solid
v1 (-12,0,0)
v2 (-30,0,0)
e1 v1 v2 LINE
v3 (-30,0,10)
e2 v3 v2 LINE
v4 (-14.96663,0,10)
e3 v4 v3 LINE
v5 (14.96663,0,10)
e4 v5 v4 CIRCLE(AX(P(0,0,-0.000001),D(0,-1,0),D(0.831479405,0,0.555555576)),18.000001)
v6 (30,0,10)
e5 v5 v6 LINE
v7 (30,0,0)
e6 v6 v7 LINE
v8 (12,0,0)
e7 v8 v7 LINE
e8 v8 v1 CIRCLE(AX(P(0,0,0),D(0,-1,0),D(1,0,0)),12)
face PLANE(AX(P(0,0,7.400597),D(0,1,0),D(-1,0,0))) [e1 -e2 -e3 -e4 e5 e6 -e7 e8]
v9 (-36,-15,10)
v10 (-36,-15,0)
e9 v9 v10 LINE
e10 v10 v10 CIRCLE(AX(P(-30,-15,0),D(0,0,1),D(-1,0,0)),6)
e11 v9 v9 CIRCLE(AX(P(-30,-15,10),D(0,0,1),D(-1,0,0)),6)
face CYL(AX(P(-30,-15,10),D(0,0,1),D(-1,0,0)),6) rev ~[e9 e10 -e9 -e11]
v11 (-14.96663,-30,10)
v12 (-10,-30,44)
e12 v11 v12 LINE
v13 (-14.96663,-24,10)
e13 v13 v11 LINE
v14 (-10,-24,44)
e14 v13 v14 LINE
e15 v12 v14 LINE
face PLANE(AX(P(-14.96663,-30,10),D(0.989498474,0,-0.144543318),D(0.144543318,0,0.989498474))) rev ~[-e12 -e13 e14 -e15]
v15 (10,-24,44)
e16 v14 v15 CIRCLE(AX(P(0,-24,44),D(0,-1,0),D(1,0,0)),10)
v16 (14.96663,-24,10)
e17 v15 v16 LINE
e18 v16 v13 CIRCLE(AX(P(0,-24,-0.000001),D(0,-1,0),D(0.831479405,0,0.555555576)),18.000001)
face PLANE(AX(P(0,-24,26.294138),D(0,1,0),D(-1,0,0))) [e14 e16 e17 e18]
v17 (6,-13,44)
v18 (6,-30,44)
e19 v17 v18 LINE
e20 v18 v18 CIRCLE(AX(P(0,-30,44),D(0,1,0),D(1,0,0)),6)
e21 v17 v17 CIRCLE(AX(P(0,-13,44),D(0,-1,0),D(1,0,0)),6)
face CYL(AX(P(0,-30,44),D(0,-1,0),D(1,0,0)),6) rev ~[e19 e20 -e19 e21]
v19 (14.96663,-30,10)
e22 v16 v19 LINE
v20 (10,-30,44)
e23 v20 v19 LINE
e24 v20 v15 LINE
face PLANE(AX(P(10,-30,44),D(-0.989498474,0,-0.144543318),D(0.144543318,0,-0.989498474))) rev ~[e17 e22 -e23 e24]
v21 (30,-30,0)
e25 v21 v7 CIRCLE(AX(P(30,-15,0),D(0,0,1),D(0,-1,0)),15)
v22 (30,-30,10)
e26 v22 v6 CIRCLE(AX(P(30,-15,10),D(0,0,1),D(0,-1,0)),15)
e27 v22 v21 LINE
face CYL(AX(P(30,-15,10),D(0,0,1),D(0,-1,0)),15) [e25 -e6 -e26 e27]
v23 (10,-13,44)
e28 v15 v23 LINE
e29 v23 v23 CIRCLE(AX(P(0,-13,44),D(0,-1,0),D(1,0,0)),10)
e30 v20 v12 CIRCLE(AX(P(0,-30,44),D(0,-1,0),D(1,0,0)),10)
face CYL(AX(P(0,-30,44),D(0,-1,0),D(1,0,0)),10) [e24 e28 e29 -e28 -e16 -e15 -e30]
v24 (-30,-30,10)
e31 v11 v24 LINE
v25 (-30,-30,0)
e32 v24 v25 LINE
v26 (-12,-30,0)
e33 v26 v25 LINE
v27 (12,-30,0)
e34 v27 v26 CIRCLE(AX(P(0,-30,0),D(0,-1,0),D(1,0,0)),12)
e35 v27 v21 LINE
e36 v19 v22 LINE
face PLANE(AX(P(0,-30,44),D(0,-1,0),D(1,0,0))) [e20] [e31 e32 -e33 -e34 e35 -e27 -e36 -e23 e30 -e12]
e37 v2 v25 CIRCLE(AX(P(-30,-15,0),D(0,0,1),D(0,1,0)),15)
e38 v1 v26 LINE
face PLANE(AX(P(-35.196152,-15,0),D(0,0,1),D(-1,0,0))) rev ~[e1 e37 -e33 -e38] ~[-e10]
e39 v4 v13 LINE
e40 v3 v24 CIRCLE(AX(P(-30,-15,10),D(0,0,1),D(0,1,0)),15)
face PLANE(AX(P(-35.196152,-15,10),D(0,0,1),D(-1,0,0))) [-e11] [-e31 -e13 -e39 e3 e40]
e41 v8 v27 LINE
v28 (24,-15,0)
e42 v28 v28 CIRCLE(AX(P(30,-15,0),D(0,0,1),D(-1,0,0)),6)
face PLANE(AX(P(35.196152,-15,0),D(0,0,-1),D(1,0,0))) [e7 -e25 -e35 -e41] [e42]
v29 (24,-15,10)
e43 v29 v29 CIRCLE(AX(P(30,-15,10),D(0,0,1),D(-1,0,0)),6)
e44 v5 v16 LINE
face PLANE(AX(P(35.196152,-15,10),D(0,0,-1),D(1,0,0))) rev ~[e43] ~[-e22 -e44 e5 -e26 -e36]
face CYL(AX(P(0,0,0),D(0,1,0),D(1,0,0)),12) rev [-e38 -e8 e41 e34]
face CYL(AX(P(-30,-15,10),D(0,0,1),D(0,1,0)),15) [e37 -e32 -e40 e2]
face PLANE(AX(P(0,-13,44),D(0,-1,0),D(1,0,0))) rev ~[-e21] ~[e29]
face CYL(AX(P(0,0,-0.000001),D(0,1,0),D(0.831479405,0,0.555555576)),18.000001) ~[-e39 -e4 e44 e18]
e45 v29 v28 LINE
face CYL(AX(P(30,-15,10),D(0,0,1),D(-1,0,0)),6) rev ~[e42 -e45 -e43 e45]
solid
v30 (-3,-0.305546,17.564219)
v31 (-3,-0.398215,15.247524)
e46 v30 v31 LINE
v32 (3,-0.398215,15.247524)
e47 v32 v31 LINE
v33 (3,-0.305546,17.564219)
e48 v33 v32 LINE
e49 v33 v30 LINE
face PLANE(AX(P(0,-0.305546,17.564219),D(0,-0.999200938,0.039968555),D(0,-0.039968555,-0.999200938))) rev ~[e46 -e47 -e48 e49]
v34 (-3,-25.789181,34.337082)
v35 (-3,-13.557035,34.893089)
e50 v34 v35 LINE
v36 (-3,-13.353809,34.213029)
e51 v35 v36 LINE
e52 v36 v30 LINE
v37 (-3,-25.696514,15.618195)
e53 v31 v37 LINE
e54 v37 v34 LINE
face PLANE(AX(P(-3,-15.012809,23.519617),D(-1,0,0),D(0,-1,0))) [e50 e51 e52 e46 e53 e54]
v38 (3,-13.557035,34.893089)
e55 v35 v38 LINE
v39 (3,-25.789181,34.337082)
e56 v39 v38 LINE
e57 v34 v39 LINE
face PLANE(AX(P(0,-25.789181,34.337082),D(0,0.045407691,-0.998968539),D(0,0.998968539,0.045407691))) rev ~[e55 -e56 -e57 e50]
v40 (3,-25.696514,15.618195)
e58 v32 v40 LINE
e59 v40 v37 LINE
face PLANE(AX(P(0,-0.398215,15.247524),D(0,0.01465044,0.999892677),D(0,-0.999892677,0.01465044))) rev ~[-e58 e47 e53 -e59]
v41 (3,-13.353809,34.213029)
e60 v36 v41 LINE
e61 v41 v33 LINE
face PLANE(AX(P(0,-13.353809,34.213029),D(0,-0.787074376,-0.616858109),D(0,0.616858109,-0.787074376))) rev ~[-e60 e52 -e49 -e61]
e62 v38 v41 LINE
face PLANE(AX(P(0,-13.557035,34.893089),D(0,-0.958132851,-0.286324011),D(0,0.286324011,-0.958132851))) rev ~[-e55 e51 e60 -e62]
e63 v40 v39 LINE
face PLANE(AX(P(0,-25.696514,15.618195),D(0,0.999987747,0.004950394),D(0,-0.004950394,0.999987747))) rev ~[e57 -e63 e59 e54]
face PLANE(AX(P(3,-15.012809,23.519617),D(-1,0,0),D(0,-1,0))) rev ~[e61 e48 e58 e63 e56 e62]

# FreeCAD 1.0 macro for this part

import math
import FreeCAD as App
import Part
import Sketcher
from FreeCAD import Vector


def add_polygon(sketch, points):
    """Adds a closed chain of lines whose ends are joined by coincident constraints."""
    first, n = sketch.GeometryCount, len(points)
    for a, b in zip(points, points[1:] + points[:1]):
        sketch.addGeometry(Part.LineSegment(App.Vector(*a, 0), App.Vector(*b, 0)), False)
    for i in range(n):
        sketch.addConstraint(Sketcher.Constraint("Coincident", first + i, 2, first + (i + 1) % n, 1))

doc = App.newDocument("Part")
params = doc.addObject("Spreadsheet::Sheet", "Params")
for row, (alias, value) in enumerate([
    ("sketch1_radius", "12 mm"),
    ("sketch1_radius2", "18.000001 mm"),
    ("sketch1_width", "18 mm"),
    ("sketch1_height", "10 mm"),
    ("pad1_length", "30 mm"),
    ("sketch2_radius", "15 mm"),
    ("pad2_length", "10 mm"),
    ("sketch3_radius", "15 mm"),
    ("pad3_length", "10 mm"),
    ("sketch4_diameter", "12 mm"),
    ("sketch5_diameter", "12 mm"),
    ("sketch6_radius", "18.000001 mm"),
    ("sketch6_width", "20 mm"),
    ("pad4_length", "6 mm"),
    ("sketch7_diameter", "20 mm"),
    ("sketch7_diameter2", "12 mm"),
    ("pad5_length", "17 mm"),
    ("sketch8_diameter", "12 mm"),
    ("pad6_length", "6 mm"),
], start=1):
    params.set(f"A{row}", alias)
    params.set(f"B{row}", "=" + value)
    params.setAlias(f"B{row}", alias)

body = doc.addObject("PartDesign::Body", "Body")

# Sketch on XZ plane
sketch1 = body.newObject("Sketcher::SketchObject", "Sketch")
sketch1.AttachmentSupport = (doc.getObject("XZ_Plane"), [""])
sketch1.MapMode = "FlatFace"
sketch1.addGeometry(Part.ArcOfCircle(Part.Circle(Vector(0, 0, 0), Vector(0, 0, 1), 12), math.radians(0), math.radians(180)), False)
sketch1.addGeometry(Part.LineSegment(Vector(12, 0, 0), Vector(30, 0, 0)), False)
sketch1.addGeometry(Part.LineSegment(Vector(30, 0, 0), Vector(30, 10, 0)), False)
sketch1.addGeometry(Part.LineSegment(Vector(30, 10, 0), Vector(14.96663, 10, 0)), False)
sketch1.addGeometry(Part.ArcOfCircle(Part.Circle(Vector(0, -0.000001, 0), Vector(0, 0, 1), 18.000001), math.radians(33.74899), math.radians(146.25101)), False)
sketch1.addGeometry(Part.LineSegment(Vector(-14.96663, 10, 0), Vector(-30, 10, 0)), False)
sketch1.addGeometry(Part.LineSegment(Vector(-30, 10, 0), Vector(-30, 0, 0)), False)
sketch1.addGeometry(Part.LineSegment(Vector(-30, 0, 0), Vector(-12, 0, 0)), False)
sketch1.addConstraint(Sketcher.Constraint("Coincident", 0, 1, 1, 1))
sketch1.addConstraint(Sketcher.Constraint("Coincident", 1, 2, 2, 1))
sketch1.addConstraint(Sketcher.Constraint("Coincident", 2, 2, 3, 1))
sketch1.addConstraint(Sketcher.Constraint("Coincident", 3, 2, 4, 1))
sketch1.addConstraint(Sketcher.Constraint("Coincident", 4, 2, 5, 1))
sketch1.addConstraint(Sketcher.Constraint("Coincident", 5, 2, 6, 1))
sketch1.addConstraint(Sketcher.Constraint("Coincident", 6, 2, 7, 1))
sketch1.addConstraint(Sketcher.Constraint("Coincident", 7, 2, 0, 2))
sketch1.addConstraint(Sketcher.Constraint("Horizontal", 1))
sketch1.addConstraint(Sketcher.Constraint("Vertical", 2))
sketch1.addConstraint(Sketcher.Constraint("Horizontal", 3))
sketch1.addConstraint(Sketcher.Constraint("Horizontal", 5))
sketch1.addConstraint(Sketcher.Constraint("Vertical", 6))
sketch1.addConstraint(Sketcher.Constraint("Horizontal", 7))
sketch1.addConstraint(Sketcher.Constraint("Coincident", 0, 3, -1, 1))
sketch1.addConstraint(Sketcher.Constraint("Coincident", 4, 3, -1, 1))
sketch1.addConstraint(Sketcher.Constraint("Symmetric", 1, 2, 6, 2, -1, 1))
sketch1.addConstraint(Sketcher.Constraint("PointOnObject", 0, 1, -1))
sketch1.addConstraint(Sketcher.Constraint("Horizontal", 3, 2, 4, 2))
sketch1.addConstraint(Sketcher.Constraint("Radius", 0, 12.0))
sketch1.addConstraint(Sketcher.Constraint("Radius", 4, 18.000001))
sketch1.addConstraint(Sketcher.Constraint("DistanceX", 1, 1, 1, 2, 18.0))
sketch1.addConstraint(Sketcher.Constraint("DistanceY", 2, 1, 2, 2, 10.0))
sketch1.setExpression("Constraints[19]", "Params.sketch1_radius")
sketch1.setExpression("Constraints[20]", "Params.sketch1_radius2")
sketch1.setExpression("Constraints[21]", "Params.sketch1_width")
sketch1.setExpression("Constraints[22]", "Params.sketch1_height")
pad1 = body.newObject("PartDesign::Pad", "Pad")
pad1.Profile = sketch1
pad1.setExpression("Length", "Params.pad1_length")

# Sketch on XY plane
sketch2 = body.newObject("Sketcher::SketchObject", "Sketch001")
sketch2.AttachmentSupport = (doc.getObject("XY_Plane"), [""])
sketch2.MapMode = "FlatFace"
sketch2.AttachmentOffset = App.Placement(Vector(0, 0, 10), App.Rotation())
sketch2.addGeometry(Part.LineSegment(Vector(30, 0, 0), Vector(30, -30, 0)), False)
sketch2.addGeometry(Part.ArcOfCircle(Part.Circle(Vector(30, -15, 0), Vector(0, 0, 1), 15), math.radians(-90), math.radians(90)), False)
sketch2.addConstraint(Sketcher.Constraint("Coincident", 0, 1, 1, 2))
sketch2.addConstraint(Sketcher.Constraint("Coincident", 1, 1, 0, 2))
sketch2.addConstraint(Sketcher.Constraint("Vertical", 0))
sketch2.addConstraint(Sketcher.Constraint("PointOnObject", 0, 1, -1))
sketch2.addConstraint(Sketcher.Constraint("Vertical", 1, 3, 0, 1))
sketch2.addConstraint(Sketcher.Constraint("Radius", 1, 15.0))
sketch2.addConstraint(Sketcher.Constraint("DistanceX", -1, 1, 1, 3, 30.0))
sketch2.setExpression("Constraints[5]", "Params.sketch2_radius")
pad2 = body.newObject("PartDesign::Pad", "Pad001")
pad2.Profile = sketch2
pad2.setExpression("Length", "Params.pad2_length")
pad2.Reversed = True

# Sketch on XY plane
sketch3 = body.newObject("Sketcher::SketchObject", "Sketch002")
sketch3.AttachmentSupport = (doc.getObject("XY_Plane"), [""])
sketch3.MapMode = "FlatFace"
sketch3.AttachmentOffset = App.Placement(Vector(0, 0, 10), App.Rotation())
sketch3.addGeometry(Part.LineSegment(Vector(-30, -30, 0), Vector(-30, 0, 0)), False)
sketch3.addGeometry(Part.ArcOfCircle(Part.Circle(Vector(-30, -15, 0), Vector(0, 0, 1), 15), math.radians(90), math.radians(270)), False)
sketch3.addConstraint(Sketcher.Constraint("Coincident", 0, 1, 1, 2))
sketch3.addConstraint(Sketcher.Constraint("Coincident", 1, 1, 0, 2))
sketch3.addConstraint(Sketcher.Constraint("Vertical", 0))
sketch3.addConstraint(Sketcher.Constraint("PointOnObject", 1, 1, -1))
sketch3.addConstraint(Sketcher.Constraint("Vertical", 1, 3, 0, 1))
sketch3.addConstraint(Sketcher.Constraint("Radius", 1, 15.0))
sketch3.addConstraint(Sketcher.Constraint("DistanceX", 1, 3, -1, 1, 30.0))
sketch3.setExpression("Constraints[5]", "Params.sketch3_radius")
pad3 = body.newObject("PartDesign::Pad", "Pad002")
pad3.Profile = sketch3
pad3.setExpression("Length", "Params.pad3_length")
pad3.Reversed = True

# Sketch on XY plane
sketch4 = body.newObject("Sketcher::SketchObject", "Sketch003")
sketch4.AttachmentSupport = (doc.getObject("XY_Plane"), [""])
sketch4.MapMode = "FlatFace"
sketch4.AttachmentOffset = App.Placement(Vector(0, 0, 10), App.Rotation())
sketch4.addGeometry(Part.Circle(Vector(30, -15, 0), Vector(0, 0, 1), 6), False)
sketch4.addConstraint(Sketcher.Constraint("Diameter", 0, 12.0))
sketch4.addConstraint(Sketcher.Constraint("DistanceX", -1, 1, 0, 3, 30.0))
sketch4.addConstraint(Sketcher.Constraint("DistanceY", 0, 3, -1, 1, 15.0))
sketch4.setExpression("Constraints[0]", "Params.sketch4_diameter")
pocket1 = body.newObject("PartDesign::Pocket", "Pocket")
pocket1.Profile = sketch4
pocket1.Type = "ThroughAll"

# Sketch on XY plane
sketch5 = body.newObject("Sketcher::SketchObject", "Sketch004")
sketch5.AttachmentSupport = (doc.getObject("XY_Plane"), [""])
sketch5.MapMode = "FlatFace"
sketch5.AttachmentOffset = App.Placement(Vector(0, 0, 10), App.Rotation())
sketch5.addGeometry(Part.Circle(Vector(-30, -15, 0), Vector(0, 0, 1), 6), False)
sketch5.addConstraint(Sketcher.Constraint("Diameter", 0, 12.0))
sketch5.addConstraint(Sketcher.Constraint("DistanceX", 0, 3, -1, 1, 30.0))
sketch5.addConstraint(Sketcher.Constraint("DistanceY", 0, 3, -1, 1, 15.0))
sketch5.setExpression("Constraints[0]", "Params.sketch5_diameter")
pocket2 = body.newObject("PartDesign::Pocket", "Pocket001")
pocket2.Profile = sketch5
pocket2.Type = "ThroughAll"

# Sketch on XZ plane
sketch6 = body.newObject("Sketcher::SketchObject", "Sketch005")
sketch6.AttachmentSupport = (doc.getObject("XZ_Plane"), [""])
sketch6.MapMode = "FlatFace"
sketch6.AttachmentOffset = App.Placement(Vector(0, 0, 30), App.Rotation())
sketch6.addGeometry(Part.LineSegment(Vector(-10, 44, 0), Vector(-14.96663, 10, 0)), False)
sketch6.addGeometry(Part.ArcOfCircle(Part.Circle(Vector(0, -0.000001, 0), Vector(0, 0, 1), 18.000001), math.radians(33.74899), math.radians(146.25101)), False)
sketch6.addGeometry(Part.LineSegment(Vector(14.96663, 10, 0), Vector(10, 44, 0)), False)
sketch6.addGeometry(Part.LineSegment(Vector(10, 44, 0), Vector(-10, 44, 0)), False)
sketch6.addConstraint(Sketcher.Constraint("Coincident", 0, 2, 1, 2))
sketch6.addConstraint(Sketcher.Constraint("Coincident", 1, 1, 2, 1))
sketch6.addConstraint(Sketcher.Constraint("Coincident", 2, 2, 3, 1))
sketch6.addConstraint(Sketcher.Constraint("Coincident", 3, 2, 0, 1))
sketch6.addConstraint(Sketcher.Constraint("Horizontal", 3))
sketch6.addConstraint(Sketcher.Constraint("Coincident", 1, 3, -1, 1))
sketch6.addConstraint(Sketcher.Constraint("Horizontal", 0, 2, 1, 1))
sketch6.addConstraint(Sketcher.Constraint("Equal", 0, 2))
sketch6.addConstraint(Sketcher.Constraint("Radius", 1, 18.000001))
sketch6.addConstraint(Sketcher.Constraint("DistanceX", 3, 2, 3, 1, 20.0))
sketch6.addConstraint(Sketcher.Constraint("DistanceY", -1, 1, 0, 2, 10.0))
sketch6.addConstraint(Sketcher.Constraint("DistanceY", -1, 1, 2, 2, 44.0))
sketch6.setExpression("Constraints[8]", "Params.sketch6_radius")
sketch6.setExpression("Constraints[9]", "Params.sketch6_width")
pad4 = body.newObject("PartDesign::Pad", "Pad003")
pad4.Profile = sketch6
pad4.setExpression("Length", "Params.pad4_length")
pad4.Reversed = True

# Sketch on XZ plane
sketch7 = body.newObject("Sketcher::SketchObject", "Sketch006")
sketch7.AttachmentSupport = (doc.getObject("XZ_Plane"), [""])
sketch7.MapMode = "FlatFace"
sketch7.AttachmentOffset = App.Placement(Vector(0, 0, 30), App.Rotation())
sketch7.addGeometry(Part.Circle(Vector(0, 44, 0), Vector(0, 0, 1), 10), False)
sketch7.addGeometry(Part.Circle(Vector(0, 44, 0), Vector(0, 0, 1), 6), False)
sketch7.addConstraint(Sketcher.Constraint("Coincident", 1, 3, 0, 3))
sketch7.addConstraint(Sketcher.Constraint("PointOnObject", 0, 3, -2))
sketch7.addConstraint(Sketcher.Constraint("Diameter", 0, 20.0))
sketch7.addConstraint(Sketcher.Constraint("Diameter", 1, 12.0))
sketch7.addConstraint(Sketcher.Constraint("DistanceY", -1, 1, 0, 3, 44.0))
sketch7.setExpression("Constraints[2]", "Params.sketch7_diameter")
sketch7.setExpression("Constraints[3]", "Params.sketch7_diameter2")
pad5 = body.newObject("PartDesign::Pad", "Pad004")
pad5.Profile = sketch7
pad5.setExpression("Length", "Params.pad5_length")
pad5.Reversed = True

# Sketch on XZ plane
sketch8 = body.newObject("Sketcher::SketchObject", "Sketch007")
sketch8.AttachmentSupport = (doc.getObject("XZ_Plane"), [""])
sketch8.MapMode = "FlatFace"
sketch8.AttachmentOffset = App.Placement(Vector(0, 0, 30), App.Rotation())
sketch8.addGeometry(Part.Circle(Vector(0, 44, 0), Vector(0, 0, 1), 6), False)
sketch8.addConstraint(Sketcher.Constraint("PointOnObject", 0, 3, -2))
sketch8.addConstraint(Sketcher.Constraint("Diameter", 0, 12.0))
sketch8.addConstraint(Sketcher.Constraint("DistanceY", -1, 1, 0, 3, 44.0))
sketch8.setExpression("Constraints[1]", "Params.sketch8_diameter")
pocket3 = body.newObject("PartDesign::Pocket", "Pocket002")
pocket3.Profile = sketch8
pocket3.Type = "ThroughAll"
body2 = doc.addObject("PartDesign::Body", "Body001")

# Sketch on YZ plane
sketch9 = body2.newObject("Sketcher::SketchObject", "Sketch008")
sketch9.AttachmentSupport = (doc.getObject("YZ_Plane001"), [""])
sketch9.MapMode = "FlatFace"
add_polygon(sketch9, [(-0.305546, 17.564219), (-13.353809, 34.213029), (-13.557035, 34.893089), (-25.789181, 34.337082), (-25.696514, 15.618195), (-0.398215, 15.247524)])  # lines 0-5
sketch9.addConstraint(Sketcher.Constraint("DistanceX", 3, 2, 4, 2, 25.298299))
sketch9.addConstraint(Sketcher.Constraint("Distance", 0, 21.152779))
sketch9.addConstraint(Sketcher.Constraint("DistanceX", 0, 2, -1, 1, 13.353809))
sketch9.addConstraint(Sketcher.Constraint("DistanceY", -1, 1, 0, 2, 34.213029))
sketch9.addConstraint(Sketcher.Constraint("DistanceY", -1, 1, 1, 2, 34.893089))
sketch9.addConstraint(Sketcher.Constraint("DistanceX", 2, 2, -1, 1, 25.789181))
sketch9.addConstraint(Sketcher.Constraint("DistanceY", -1, 1, 5, 2, 17.564219))
sketch9.addConstraint(Sketcher.Constraint("DistanceX", 3, 2, 1, 2, 12.139479))
sketch9.addConstraint(Sketcher.Constraint("DistanceY", 4, 2, 3, 2, 0.370671))
sketch9.addConstraint(Sketcher.Constraint("DistanceY", 4, 2, 2, 2, 19.089558))
sketch9.addConstraint(Sketcher.Constraint("DistanceX", 4, 2, 5, 2, 0.092669))
sketch9.addConstraint(Sketcher.Constraint("Distance", 2, 12.244776))
pad6 = body2.newObject("PartDesign::Pad", "Pad005")
pad6.Profile = sketch9
pad6.setExpression("Length", "Params.pad6_length")
pad6.Midplane = True

doc.recompute()
